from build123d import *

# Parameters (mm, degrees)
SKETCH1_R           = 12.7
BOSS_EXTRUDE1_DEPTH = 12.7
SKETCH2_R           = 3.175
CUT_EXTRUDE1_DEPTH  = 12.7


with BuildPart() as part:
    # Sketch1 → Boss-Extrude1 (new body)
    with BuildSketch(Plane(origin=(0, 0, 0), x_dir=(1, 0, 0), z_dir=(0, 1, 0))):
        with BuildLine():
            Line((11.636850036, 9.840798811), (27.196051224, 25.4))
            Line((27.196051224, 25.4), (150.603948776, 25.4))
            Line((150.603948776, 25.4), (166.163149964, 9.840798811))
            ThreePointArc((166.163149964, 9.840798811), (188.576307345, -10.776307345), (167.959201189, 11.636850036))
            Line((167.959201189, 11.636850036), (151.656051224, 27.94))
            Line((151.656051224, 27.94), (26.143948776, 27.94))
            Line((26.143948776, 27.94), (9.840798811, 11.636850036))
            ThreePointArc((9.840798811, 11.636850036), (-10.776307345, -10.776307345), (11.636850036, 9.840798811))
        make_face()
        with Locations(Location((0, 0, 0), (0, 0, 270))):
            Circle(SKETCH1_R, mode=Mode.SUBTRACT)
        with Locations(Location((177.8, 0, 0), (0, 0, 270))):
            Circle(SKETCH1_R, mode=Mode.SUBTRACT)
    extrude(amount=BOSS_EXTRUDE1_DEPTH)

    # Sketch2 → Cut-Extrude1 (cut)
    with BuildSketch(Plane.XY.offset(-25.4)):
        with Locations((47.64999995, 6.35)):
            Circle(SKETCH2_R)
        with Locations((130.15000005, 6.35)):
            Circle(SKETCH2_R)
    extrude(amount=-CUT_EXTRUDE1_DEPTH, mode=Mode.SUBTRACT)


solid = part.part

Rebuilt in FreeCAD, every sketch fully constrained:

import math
import FreeCAD as App
import Part
import Sketcher
from FreeCAD import Vector
Q = App.Units.Quantity

doc = App.newDocument("Part")
body = doc.addObject("PartDesign::Body", "Body")

# Sketch on XZ plane
sketch1 = body.newObject("Sketcher::SketchObject", "Sketch")
sketch1.AttachmentSupport = (doc.getObject("XZ_Plane"), [""])
sketch1.MapMode = "FlatFace"
sketch1.addGeometry(Part.LineSegment(Vector(11.63685, -9.840799, 0), Vector(27.196051, -25.4, 0)), False)
sketch1.addGeometry(Part.LineSegment(Vector(27.196051, -25.4, 0), Vector(150.603949, -25.4, 0)), False)
sketch1.addGeometry(Part.LineSegment(Vector(150.603949, -25.4, 0), Vector(166.16315, -9.840799, 0)), False)
sketch1.addGeometry(Part.ArcOfCircle(Part.Circle(Vector(177.8, 0, 0), Vector(0, 0, 1), 15.24), math.radians(-130.219808), math.radians(220.219808)), False)
sketch1.addGeometry(Part.LineSegment(Vector(167.959201, -11.63685, 0), Vector(151.656051, -27.94, 0)), False)
sketch1.addGeometry(Part.LineSegment(Vector(151.656051, -27.94, 0), Vector(26.143949, -27.94, 0)), False)
sketch1.addGeometry(Part.LineSegment(Vector(26.143949, -27.94, 0), Vector(9.840799, -11.63685, 0)), False)
sketch1.addGeometry(Part.ArcOfCircle(Part.Circle(Vector(0, 0, 0), Vector(0, 0, 1), 15.24), math.radians(-40.219808), math.radians(310.219808)), False)
sketch1.addGeometry(Part.Circle(Vector(0, 0, 0), Vector(0, 0, 1), 12.7), False)
sketch1.addGeometry(Part.Circle(Vector(177.8, 0, 0), Vector(0, 0, 1), 12.7), False)
sketch1.addConstraint(Sketcher.Constraint("Coincident", 0, 2, 1, 1))
sketch1.addConstraint(Sketcher.Constraint("Coincident", 1, 2, 2, 1))
sketch1.addConstraint(Sketcher.Constraint("Coincident", 2, 2, 3, 2))
sketch1.addConstraint(Sketcher.Constraint("Coincident", 3, 1, 4, 1))
sketch1.addConstraint(Sketcher.Constraint("Coincident", 4, 2, 5, 1))
sketch1.addConstraint(Sketcher.Constraint("Coincident", 5, 2, 6, 1))
sketch1.addConstraint(Sketcher.Constraint("Coincident", 6, 2, 7, 2))
sketch1.addConstraint(Sketcher.Constraint("Coincident", 7, 1, 0, 1))
sketch1.addConstraint(Sketcher.Constraint("Horizontal", 1))
sketch1.addConstraint(Sketcher.Constraint("Horizontal", 5))
sketch1.addConstraint(Sketcher.Constraint("Coincident", 7, 3, -1, 1))
sketch1.addConstraint(Sketcher.Constraint("Coincident", 8, 3, -1, 1))
sketch1.addConstraint(Sketcher.Constraint("Coincident", 9, 3, 3, 3))
sketch1.addConstraint(Sketcher.Constraint("Equal", 3, 7))
sketch1.addConstraint(Sketcher.Constraint("Equal", 8, 9))
sketch1.addConstraint(Sketcher.Constraint("PointOnObject", 3, 3, -1))
sketch1.addConstraint(Sketcher.Constraint("Perpendicular", 0, 2))
sketch1.addConstraint(Sketcher.Constraint("Parallel", 2, 4))
sketch1.addConstraint(Sketcher.Constraint("Perpendicular", 4, 6))
sketch1.addConstraint(Sketcher.Constraint("Horizontal", 3, 1, 6, 2))
sketch1.addConstraint(Sketcher.Constraint("Horizontal", 2, 2, 7, 1))
sketch1.addConstraint(Sketcher.Constraint("Equal", 0, 2))
sketch1.addConstraint(Sketcher.Constraint("Diameter", 8, Q("1 in")))
sketch1.addConstraint(Sketcher.Constraint("Radius", 3, Q("0.6 in")))
sketch1.addConstraint(Sketcher.Constraint("DistanceX", -1, 1, 3, 3, Q("7 in")))
sketch1.addConstraint(Sketcher.Constraint("DistanceY", 0, 2, -1, 1, Q("1 in")))
sketch1.addConstraint(Sketcher.Constraint("DistanceY", 4, 2, -1, 1, Q("1.1 in")))
sketch1.addConstraint(Sketcher.Constraint("DistanceX", 5, 2, 1, 2, Q("4.9 in")))
sketch1.addConstraint(Sketcher.Constraint("DistanceY", 2, 2, -1, 1, Q("9.840799 mm")))
pad1 = body.newObject("PartDesign::Pad", "Pad")
pad1.Profile = sketch1
pad1.Length = Q("0.5 in")
pad1.Reversed = True

# Sketch on XY plane
sketch2 = body.newObject("Sketcher::SketchObject", "Sketch001")
sketch2.AttachmentSupport = (doc.getObject("XY_Plane"), [""])
sketch2.MapMode = "FlatFace"
sketch2.AttachmentOffset = App.Placement(Vector(0, 0, -1 * 25.4), App.Rotation())
sketch2.addGeometry(Part.Circle(Vector(47.65, 6.35, 0), Vector(0, 0, 1), 3.175), False)
sketch2.addGeometry(Part.Circle(Vector(130.15, 6.35, 0), Vector(0, 0, 1), 3.175), False)
sketch2.addConstraint(Sketcher.Constraint("Equal", 0, 1))
sketch2.addConstraint(Sketcher.Constraint("Horizontal", 0, 3, 1, 3))
sketch2.addConstraint(Sketcher.Constraint("Diameter", 0, Q("0.25 in")))
sketch2.addConstraint(Sketcher.Constraint("DistanceY", -1, 1, 0, 3, Q("0.25 in")))
sketch2.addConstraint(Sketcher.Constraint("DistanceX", -1, 1, 0, 3, Q("47.65 mm")))
sketch2.addConstraint(Sketcher.Constraint("DistanceX", -1, 1, 1, 3, Q("130.15 mm")))
pocket1 = body.newObject("PartDesign::Pocket", "Pocket")
pocket1.Profile = sketch2
pocket1.Length = Q("0.5 in")

doc.recompute()
